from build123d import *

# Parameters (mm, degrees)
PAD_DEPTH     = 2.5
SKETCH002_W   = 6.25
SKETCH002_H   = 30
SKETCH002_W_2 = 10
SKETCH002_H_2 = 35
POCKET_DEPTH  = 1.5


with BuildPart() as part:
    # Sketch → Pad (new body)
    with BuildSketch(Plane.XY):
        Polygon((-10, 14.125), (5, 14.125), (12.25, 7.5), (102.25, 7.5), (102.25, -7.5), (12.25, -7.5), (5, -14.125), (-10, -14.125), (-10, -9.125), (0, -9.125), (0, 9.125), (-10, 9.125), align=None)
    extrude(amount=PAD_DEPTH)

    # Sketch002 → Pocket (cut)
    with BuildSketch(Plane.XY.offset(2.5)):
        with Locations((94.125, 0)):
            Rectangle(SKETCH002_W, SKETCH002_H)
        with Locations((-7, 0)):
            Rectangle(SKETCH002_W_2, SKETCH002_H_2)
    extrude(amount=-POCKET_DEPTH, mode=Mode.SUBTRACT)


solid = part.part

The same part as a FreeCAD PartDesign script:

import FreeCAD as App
import Part
import Sketcher

doc = App.newDocument("Part")
body = doc.addObject("PartDesign::Body", "Body")

# Sketch on XY plane
sketch1 = body.newObject("Sketcher::SketchObject", "Sketch")
sketch1.AttachmentSupport = (doc.getObject("XY_Plane"), [""])
sketch1.MapMode = "FlatFace"
sketch1.addGeometry([
    Part.LineSegment(App.Vector(5, 14, 0), App.Vector(-10, 14, 0)),  # 0
    Part.LineSegment(App.Vector(-10, 14, 0), App.Vector(-10, 9, 0)),  # 1
    Part.LineSegment(App.Vector(-10, 9, 0), App.Vector(0, 9, 0)),  # 2
    Part.LineSegment(App.Vector(0, 9, 0), App.Vector(0, -9, 0)),  # 3
    Part.LineSegment(App.Vector(0, -9, 0), App.Vector(-10, -9, 0)),  # 4
    Part.LineSegment(App.Vector(-10, -9, 0), App.Vector(-10, -14, 0)),  # 5
    Part.LineSegment(App.Vector(-10, -14, 0), App.Vector(5, -14, 0)),  # 6
    Part.LineSegment(App.Vector(5, -14, 0), App.Vector(12, -8, 0)),  # 7
    Part.LineSegment(App.Vector(12, -8, 0), App.Vector(102, -8, 0)),  # 8
    Part.LineSegment(App.Vector(102, -8, 0), App.Vector(102, 8, 0)),  # 9
    Part.LineSegment(App.Vector(102, 8, 0), App.Vector(12, 8, 0)),  # 10
    Part.LineSegment(App.Vector(12, 8, 0), App.Vector(5, 14, 0)),  # 11
], False)
sketch1.addConstraint([
    Sketcher.Constraint("Coincident", 0, 2, 1, 1),
    Sketcher.Constraint("Coincident", 1, 2, 2, 1),
    Sketcher.Constraint("Coincident", 2, 2, 3, 1),
    Sketcher.Constraint("Coincident", 3, 2, 4, 1),
    Sketcher.Constraint("Coincident", 4, 2, 5, 1),
    Sketcher.Constraint("Coincident", 5, 2, 6, 1),
    Sketcher.Constraint("Coincident", 6, 2, 7, 1),
    Sketcher.Constraint("Coincident", 7, 2, 8, 1),
    Sketcher.Constraint("Coincident", 8, 2, 9, 1),
    Sketcher.Constraint("Coincident", 9, 2, 10, 1),
    Sketcher.Constraint("Coincident", 10, 2, 11, 1),
    Sketcher.Constraint("Coincident", 11, 2, 0, 1),
    Sketcher.Constraint("Horizontal", 0),
    Sketcher.Constraint("Vertical", 1),
    Sketcher.Constraint("Horizontal", 2),
    Sketcher.Constraint("Vertical", 3),
    Sketcher.Constraint("Horizontal", 4),
    Sketcher.Constraint("Vertical", 5),
    Sketcher.Constraint("Horizontal", 6),
    Sketcher.Constraint("Horizontal", 8),
    Sketcher.Constraint("Vertical", 9),
    Sketcher.Constraint("Horizontal", 10),
    Sketcher.Constraint("Symmetric", 2, 2, 3, 2, -1, 1),
    Sketcher.Constraint("Symmetric", 0, 2, 5, 2, -1),
    Sketcher.Constraint("Symmetric", 7, 2, 10, 2, -1),
    Sketcher.Constraint("Vertical", 6, 2, 11, 2),
    Sketcher.Constraint("Equal", 6, 9),
    Sketcher.Constraint("DistanceX", 0, 2, 0, 1, 15.0),
    Sketcher.Constraint("DistanceX", 2, 1, 2, 2, 10.0),
    Sketcher.Constraint("DistanceX", 8, 1, 8, 2, 90.0),
    Sketcher.Constraint("DistanceY", 1, 2, 1, 1, 5.0),
    Sketcher.Constraint("DistanceY", 3, 2, 3, 1, 18.25),
    Sketcher.Constraint("DistanceX", -1, 1, 7, 2, 12.25),
])
pad1 = body.newObject("PartDesign::Pad", "Pad")
pad1.Profile = sketch1
pad1.Length = 2.5

# Sketch on XY plane
sketch2 = body.newObject("Sketcher::SketchObject", "Sketch001")
sketch2.AttachmentSupport = (doc.getObject("XY_Plane"), [""])
sketch2.MapMode = "FlatFace"
sketch2.AttachmentOffset = App.Placement(App.Vector(0, 0, 2.5), App.Rotation())
sketch2.addGeometry([
    Part.LineSegment(App.Vector(91, 15, 0), App.Vector(91, -15, 0)),  # 0
    Part.LineSegment(App.Vector(91, -15, 0), App.Vector(97, -15, 0)),  # 1
    Part.LineSegment(App.Vector(97, -15, 0), App.Vector(97, 15, 0)),  # 2
    Part.LineSegment(App.Vector(97, 15, 0), App.Vector(91, 15, 0)),  # 3
    Part.LineSegment(App.Vector(-12, 18, 0), App.Vector(-12, -18, 0)),  # 4
    Part.LineSegment(App.Vector(-12, -18, 0), App.Vector(-2, -18, 0)),  # 5
    Part.LineSegment(App.Vector(-2, -18, 0), App.Vector(-2, 18, 0)),  # 6
    Part.LineSegment(App.Vector(-2, 18, 0), App.Vector(-12, 18, 0)),  # 7
], False)
sketch2.addConstraint([
    Sketcher.Constraint("Coincident", 0, 2, 1, 1),
    Sketcher.Constraint("Coincident", 1, 2, 2, 1),
    Sketcher.Constraint("Coincident", 2, 2, 3, 1),
    Sketcher.Constraint("Coincident", 3, 2, 0, 1),
    Sketcher.Constraint("Coincident", 4, 2, 5, 1),
    Sketcher.Constraint("Coincident", 5, 2, 6, 1),
    Sketcher.Constraint("Coincident", 6, 2, 7, 1),
    Sketcher.Constraint("Coincident", 7, 2, 4, 1),
    Sketcher.Constraint("Vertical", 0),
    Sketcher.Constraint("Horizontal", 1),
    Sketcher.Constraint("Vertical", 2),
    Sketcher.Constraint("Horizontal", 3),
    Sketcher.Constraint("Vertical", 4),
    Sketcher.Constraint("Horizontal", 5),
    Sketcher.Constraint("Vertical", 6),
    Sketcher.Constraint("Horizontal", 7),
    Sketcher.Constraint("DistanceX", 5, 1, 5, 2, 10.0),
    Sketcher.Constraint("DistanceY", 0, 2, 0, 1, 30.0),
    Sketcher.Constraint("DistanceY", 4, 2, 4, 1, 35.0),
    Sketcher.Constraint("DistanceX", -1, 1, 0, 2, 91.0),
    Sketcher.Constraint("DistanceY", 0, 2, -1, 1, 15.0),
    Sketcher.Constraint("DistanceX", 4, 2, -1, 1, 12.0),
    Sketcher.Constraint("DistanceX", 1, 1, 1, 2, 6.25),
    Sketcher.Constraint("DistanceY", 4, 2, -1, 1, 17.5),
])
pocket1 = body.newObject("PartDesign::Pocket", "Pocket")
pocket1.Profile = sketch2
pocket1.Length = 1.5

doc.recompute()
